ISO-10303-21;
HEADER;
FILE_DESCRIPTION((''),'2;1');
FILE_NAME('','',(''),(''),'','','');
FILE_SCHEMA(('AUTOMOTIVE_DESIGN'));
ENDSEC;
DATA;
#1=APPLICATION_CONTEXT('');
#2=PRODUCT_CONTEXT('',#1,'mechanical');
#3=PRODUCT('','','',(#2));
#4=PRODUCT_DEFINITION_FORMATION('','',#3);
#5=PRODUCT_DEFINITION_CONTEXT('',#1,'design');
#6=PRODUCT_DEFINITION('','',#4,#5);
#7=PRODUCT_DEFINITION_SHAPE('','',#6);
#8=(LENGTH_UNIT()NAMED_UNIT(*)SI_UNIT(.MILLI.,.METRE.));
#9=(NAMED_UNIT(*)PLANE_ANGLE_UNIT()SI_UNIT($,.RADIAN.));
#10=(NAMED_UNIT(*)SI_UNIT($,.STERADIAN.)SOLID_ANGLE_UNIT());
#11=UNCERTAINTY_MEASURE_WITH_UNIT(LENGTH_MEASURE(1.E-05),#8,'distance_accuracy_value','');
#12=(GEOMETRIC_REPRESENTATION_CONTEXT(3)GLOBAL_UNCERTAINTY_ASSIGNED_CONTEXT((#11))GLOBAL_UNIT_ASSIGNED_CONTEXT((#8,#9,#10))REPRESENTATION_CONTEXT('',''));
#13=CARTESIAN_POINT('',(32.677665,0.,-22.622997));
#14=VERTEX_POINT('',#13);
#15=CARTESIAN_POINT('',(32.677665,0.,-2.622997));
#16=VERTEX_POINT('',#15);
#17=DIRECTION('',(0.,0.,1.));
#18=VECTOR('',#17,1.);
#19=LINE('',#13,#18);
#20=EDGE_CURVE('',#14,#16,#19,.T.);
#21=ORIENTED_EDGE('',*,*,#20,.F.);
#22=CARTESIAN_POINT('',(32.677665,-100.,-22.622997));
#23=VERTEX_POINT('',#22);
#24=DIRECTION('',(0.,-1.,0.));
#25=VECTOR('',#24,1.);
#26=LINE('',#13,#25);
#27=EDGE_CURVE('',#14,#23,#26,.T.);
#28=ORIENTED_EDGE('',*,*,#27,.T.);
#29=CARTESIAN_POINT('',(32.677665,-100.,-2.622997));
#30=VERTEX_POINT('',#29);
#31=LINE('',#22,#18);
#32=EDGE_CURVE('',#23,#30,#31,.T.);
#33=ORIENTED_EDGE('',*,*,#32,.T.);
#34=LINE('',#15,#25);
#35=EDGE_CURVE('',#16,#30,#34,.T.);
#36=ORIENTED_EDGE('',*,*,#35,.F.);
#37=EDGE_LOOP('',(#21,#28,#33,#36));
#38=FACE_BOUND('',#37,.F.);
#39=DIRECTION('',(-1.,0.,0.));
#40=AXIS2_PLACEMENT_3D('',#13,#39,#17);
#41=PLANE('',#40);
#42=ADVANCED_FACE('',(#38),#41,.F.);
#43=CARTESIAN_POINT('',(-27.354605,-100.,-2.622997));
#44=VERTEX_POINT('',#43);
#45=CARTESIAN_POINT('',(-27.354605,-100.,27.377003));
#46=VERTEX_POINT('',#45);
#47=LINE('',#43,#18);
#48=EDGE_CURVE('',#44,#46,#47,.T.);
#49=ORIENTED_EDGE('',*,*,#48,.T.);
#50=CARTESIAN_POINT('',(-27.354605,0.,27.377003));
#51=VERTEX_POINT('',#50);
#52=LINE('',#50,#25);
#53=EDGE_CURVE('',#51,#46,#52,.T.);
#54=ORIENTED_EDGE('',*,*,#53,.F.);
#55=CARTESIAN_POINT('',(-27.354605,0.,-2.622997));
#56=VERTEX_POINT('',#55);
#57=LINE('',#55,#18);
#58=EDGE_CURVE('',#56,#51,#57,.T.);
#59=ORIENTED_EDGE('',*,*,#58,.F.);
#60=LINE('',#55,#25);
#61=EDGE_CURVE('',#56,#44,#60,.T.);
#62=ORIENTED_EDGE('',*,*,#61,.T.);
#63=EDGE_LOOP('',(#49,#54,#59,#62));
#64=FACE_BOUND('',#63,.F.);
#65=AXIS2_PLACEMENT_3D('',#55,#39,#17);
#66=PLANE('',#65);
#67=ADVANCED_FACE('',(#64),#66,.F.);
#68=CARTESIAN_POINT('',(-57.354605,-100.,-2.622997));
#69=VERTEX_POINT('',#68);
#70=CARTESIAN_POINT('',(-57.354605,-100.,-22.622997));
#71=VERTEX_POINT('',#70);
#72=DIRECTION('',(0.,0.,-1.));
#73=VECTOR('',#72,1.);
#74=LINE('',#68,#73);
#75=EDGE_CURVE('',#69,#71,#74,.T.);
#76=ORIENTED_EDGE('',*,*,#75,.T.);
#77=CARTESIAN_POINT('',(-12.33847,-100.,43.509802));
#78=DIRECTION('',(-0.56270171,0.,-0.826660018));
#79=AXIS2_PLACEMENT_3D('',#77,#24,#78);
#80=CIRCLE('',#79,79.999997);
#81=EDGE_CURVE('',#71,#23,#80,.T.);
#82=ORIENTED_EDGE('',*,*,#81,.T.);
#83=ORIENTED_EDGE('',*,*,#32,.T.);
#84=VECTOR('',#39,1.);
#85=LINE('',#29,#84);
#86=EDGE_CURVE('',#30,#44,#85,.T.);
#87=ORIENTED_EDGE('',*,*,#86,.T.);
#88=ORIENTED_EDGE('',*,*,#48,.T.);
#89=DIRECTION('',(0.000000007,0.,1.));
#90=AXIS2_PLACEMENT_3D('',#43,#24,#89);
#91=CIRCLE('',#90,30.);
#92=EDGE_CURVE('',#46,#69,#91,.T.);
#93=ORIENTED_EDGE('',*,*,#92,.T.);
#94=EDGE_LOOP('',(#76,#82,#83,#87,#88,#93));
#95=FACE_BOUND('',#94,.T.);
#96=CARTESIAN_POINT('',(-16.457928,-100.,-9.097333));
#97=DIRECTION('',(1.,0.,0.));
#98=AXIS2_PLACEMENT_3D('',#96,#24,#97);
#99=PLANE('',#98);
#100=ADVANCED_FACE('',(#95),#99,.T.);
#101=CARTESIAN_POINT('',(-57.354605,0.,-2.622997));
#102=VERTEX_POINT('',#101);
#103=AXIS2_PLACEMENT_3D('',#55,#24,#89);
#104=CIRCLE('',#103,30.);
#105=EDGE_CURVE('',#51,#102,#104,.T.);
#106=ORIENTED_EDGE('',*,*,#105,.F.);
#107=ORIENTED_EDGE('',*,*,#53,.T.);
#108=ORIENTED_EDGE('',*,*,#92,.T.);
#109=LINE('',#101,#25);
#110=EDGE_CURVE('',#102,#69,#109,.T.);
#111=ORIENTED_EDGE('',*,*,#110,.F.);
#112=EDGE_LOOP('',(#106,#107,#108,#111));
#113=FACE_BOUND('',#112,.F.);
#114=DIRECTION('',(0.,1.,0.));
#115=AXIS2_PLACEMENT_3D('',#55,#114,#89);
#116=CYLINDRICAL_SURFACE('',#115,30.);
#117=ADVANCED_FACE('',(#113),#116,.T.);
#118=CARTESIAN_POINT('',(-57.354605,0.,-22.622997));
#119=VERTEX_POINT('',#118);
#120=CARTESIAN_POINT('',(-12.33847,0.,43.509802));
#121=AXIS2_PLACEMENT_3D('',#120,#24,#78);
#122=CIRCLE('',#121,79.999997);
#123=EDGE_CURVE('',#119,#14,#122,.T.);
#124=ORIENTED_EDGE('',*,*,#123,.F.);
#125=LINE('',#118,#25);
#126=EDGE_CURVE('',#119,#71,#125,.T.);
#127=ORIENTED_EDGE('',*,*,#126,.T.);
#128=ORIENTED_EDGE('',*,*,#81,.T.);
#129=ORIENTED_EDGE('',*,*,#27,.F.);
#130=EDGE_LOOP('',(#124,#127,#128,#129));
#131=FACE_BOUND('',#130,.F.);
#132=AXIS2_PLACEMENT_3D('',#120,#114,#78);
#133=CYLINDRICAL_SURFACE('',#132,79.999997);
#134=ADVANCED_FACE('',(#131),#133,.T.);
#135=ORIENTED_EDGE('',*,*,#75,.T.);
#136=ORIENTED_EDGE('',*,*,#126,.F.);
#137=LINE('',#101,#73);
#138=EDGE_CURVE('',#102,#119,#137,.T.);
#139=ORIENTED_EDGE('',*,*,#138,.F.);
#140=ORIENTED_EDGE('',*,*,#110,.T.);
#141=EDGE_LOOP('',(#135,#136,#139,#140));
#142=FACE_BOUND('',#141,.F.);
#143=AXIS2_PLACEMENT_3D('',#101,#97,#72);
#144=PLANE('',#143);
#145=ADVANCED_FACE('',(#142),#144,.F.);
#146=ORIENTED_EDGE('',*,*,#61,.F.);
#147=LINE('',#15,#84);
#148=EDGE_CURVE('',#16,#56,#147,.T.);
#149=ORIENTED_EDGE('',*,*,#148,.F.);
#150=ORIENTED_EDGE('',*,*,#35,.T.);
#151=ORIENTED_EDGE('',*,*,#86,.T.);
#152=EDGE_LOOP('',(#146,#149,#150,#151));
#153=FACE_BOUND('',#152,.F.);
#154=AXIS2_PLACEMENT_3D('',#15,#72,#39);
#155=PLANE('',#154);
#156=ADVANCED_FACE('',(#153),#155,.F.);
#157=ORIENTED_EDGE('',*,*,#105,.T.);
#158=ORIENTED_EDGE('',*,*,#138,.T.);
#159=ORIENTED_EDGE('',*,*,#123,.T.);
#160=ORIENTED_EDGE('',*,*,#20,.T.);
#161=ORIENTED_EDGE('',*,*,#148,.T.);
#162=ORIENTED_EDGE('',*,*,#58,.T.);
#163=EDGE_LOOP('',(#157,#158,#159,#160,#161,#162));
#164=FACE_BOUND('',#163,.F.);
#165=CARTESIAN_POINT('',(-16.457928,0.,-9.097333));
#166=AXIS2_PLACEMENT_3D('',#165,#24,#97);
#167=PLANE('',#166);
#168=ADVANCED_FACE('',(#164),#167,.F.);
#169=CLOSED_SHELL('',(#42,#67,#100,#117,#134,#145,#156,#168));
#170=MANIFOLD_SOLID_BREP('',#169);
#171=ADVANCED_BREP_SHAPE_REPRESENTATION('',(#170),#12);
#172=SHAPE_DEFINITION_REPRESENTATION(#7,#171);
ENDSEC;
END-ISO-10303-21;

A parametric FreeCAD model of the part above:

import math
import FreeCAD as App
import Part
import Sketcher

V = App.Vector
Q = App.Units.Quantity

doc = App.newDocument("Part")
body = doc.addObject("PartDesign::Body", "Body")

# Sketch on XZ plane
sketch1 = body.newObject("Sketcher::SketchObject", "Sketch")
sketch1.AttachmentSupport = (doc.getObject("XZ_Plane"), [""])
sketch1.MapMode = "FlatFace"
sketch1.addGeometry([
    Part.ArcOfCircle(Part.Circle(V(-12.33847, 43.509802, 0), V(0, 0, 1), 79.999997), math.radians(-124.242846), math.radians(-55.757154)),  # 0
    Part.LineSegment(V(32.677665, -22.622997, 0), V(32.677665, -2.622997, 0)),  # 1
    Part.LineSegment(V(32.677665, -2.622997, 0), V(-27.354605, -2.622997, 0)),  # 2
    Part.LineSegment(V(-27.354605, -2.622997, 0), V(-27.354605, 27.377003, 0)),  # 3
    Part.ArcOfCircle(Part.Circle(V(-27.354605, -2.622997, 0), V(0, 0, 1), 30), math.radians(90), math.radians(180)),  # 4
    Part.LineSegment(V(-57.354605, -2.622997, 0), V(-57.354605, -22.622997, 0)),  # 5
], False)
sketch1.addConstraint([
    Sketcher.Constraint("Coincident", 0, 2, 1, 1),
    Sketcher.Constraint("Coincident", 1, 2, 2, 1),
    Sketcher.Constraint("Coincident", 2, 2, 3, 1),
    Sketcher.Constraint("Coincident", 3, 2, 4, 1),
    Sketcher.Constraint("Tangent", 4, 2, 5, 1),
    Sketcher.Constraint("Coincident", 5, 2, 0, 1),
    Sketcher.Constraint("Vertical", 1),
    Sketcher.Constraint("Horizontal", 2),
    Sketcher.Constraint("Vertical", 3),
    Sketcher.Constraint("Vertical", 5),
    Sketcher.Constraint("Coincident", 2, 2, 4, 3),
    Sketcher.Constraint("Horizontal", 0, 2, 5, 2),
    Sketcher.Constraint("Radius", 4, Q("30 mm")),
    Sketcher.Constraint("DistanceY", 1, 1, 1, 2, Q("20 mm")),
    Sketcher.Constraint("Radius", 0, Q("79.999997 mm")),
    Sketcher.Constraint("DistanceX", 2, 2, 2, 1, Q("60.03227 mm")),
    Sketcher.Constraint("DistanceY", -1, 1, 0, 3, Q("43.509802 mm")),
    Sketcher.Constraint("DistanceX", 0, 3, -1, 1, Q("12.33847 mm")),
])
pad1 = body.newObject("PartDesign::Pad", "Pad")
pad1.Profile = sketch1
pad1.Length = 100

doc.recompute()
